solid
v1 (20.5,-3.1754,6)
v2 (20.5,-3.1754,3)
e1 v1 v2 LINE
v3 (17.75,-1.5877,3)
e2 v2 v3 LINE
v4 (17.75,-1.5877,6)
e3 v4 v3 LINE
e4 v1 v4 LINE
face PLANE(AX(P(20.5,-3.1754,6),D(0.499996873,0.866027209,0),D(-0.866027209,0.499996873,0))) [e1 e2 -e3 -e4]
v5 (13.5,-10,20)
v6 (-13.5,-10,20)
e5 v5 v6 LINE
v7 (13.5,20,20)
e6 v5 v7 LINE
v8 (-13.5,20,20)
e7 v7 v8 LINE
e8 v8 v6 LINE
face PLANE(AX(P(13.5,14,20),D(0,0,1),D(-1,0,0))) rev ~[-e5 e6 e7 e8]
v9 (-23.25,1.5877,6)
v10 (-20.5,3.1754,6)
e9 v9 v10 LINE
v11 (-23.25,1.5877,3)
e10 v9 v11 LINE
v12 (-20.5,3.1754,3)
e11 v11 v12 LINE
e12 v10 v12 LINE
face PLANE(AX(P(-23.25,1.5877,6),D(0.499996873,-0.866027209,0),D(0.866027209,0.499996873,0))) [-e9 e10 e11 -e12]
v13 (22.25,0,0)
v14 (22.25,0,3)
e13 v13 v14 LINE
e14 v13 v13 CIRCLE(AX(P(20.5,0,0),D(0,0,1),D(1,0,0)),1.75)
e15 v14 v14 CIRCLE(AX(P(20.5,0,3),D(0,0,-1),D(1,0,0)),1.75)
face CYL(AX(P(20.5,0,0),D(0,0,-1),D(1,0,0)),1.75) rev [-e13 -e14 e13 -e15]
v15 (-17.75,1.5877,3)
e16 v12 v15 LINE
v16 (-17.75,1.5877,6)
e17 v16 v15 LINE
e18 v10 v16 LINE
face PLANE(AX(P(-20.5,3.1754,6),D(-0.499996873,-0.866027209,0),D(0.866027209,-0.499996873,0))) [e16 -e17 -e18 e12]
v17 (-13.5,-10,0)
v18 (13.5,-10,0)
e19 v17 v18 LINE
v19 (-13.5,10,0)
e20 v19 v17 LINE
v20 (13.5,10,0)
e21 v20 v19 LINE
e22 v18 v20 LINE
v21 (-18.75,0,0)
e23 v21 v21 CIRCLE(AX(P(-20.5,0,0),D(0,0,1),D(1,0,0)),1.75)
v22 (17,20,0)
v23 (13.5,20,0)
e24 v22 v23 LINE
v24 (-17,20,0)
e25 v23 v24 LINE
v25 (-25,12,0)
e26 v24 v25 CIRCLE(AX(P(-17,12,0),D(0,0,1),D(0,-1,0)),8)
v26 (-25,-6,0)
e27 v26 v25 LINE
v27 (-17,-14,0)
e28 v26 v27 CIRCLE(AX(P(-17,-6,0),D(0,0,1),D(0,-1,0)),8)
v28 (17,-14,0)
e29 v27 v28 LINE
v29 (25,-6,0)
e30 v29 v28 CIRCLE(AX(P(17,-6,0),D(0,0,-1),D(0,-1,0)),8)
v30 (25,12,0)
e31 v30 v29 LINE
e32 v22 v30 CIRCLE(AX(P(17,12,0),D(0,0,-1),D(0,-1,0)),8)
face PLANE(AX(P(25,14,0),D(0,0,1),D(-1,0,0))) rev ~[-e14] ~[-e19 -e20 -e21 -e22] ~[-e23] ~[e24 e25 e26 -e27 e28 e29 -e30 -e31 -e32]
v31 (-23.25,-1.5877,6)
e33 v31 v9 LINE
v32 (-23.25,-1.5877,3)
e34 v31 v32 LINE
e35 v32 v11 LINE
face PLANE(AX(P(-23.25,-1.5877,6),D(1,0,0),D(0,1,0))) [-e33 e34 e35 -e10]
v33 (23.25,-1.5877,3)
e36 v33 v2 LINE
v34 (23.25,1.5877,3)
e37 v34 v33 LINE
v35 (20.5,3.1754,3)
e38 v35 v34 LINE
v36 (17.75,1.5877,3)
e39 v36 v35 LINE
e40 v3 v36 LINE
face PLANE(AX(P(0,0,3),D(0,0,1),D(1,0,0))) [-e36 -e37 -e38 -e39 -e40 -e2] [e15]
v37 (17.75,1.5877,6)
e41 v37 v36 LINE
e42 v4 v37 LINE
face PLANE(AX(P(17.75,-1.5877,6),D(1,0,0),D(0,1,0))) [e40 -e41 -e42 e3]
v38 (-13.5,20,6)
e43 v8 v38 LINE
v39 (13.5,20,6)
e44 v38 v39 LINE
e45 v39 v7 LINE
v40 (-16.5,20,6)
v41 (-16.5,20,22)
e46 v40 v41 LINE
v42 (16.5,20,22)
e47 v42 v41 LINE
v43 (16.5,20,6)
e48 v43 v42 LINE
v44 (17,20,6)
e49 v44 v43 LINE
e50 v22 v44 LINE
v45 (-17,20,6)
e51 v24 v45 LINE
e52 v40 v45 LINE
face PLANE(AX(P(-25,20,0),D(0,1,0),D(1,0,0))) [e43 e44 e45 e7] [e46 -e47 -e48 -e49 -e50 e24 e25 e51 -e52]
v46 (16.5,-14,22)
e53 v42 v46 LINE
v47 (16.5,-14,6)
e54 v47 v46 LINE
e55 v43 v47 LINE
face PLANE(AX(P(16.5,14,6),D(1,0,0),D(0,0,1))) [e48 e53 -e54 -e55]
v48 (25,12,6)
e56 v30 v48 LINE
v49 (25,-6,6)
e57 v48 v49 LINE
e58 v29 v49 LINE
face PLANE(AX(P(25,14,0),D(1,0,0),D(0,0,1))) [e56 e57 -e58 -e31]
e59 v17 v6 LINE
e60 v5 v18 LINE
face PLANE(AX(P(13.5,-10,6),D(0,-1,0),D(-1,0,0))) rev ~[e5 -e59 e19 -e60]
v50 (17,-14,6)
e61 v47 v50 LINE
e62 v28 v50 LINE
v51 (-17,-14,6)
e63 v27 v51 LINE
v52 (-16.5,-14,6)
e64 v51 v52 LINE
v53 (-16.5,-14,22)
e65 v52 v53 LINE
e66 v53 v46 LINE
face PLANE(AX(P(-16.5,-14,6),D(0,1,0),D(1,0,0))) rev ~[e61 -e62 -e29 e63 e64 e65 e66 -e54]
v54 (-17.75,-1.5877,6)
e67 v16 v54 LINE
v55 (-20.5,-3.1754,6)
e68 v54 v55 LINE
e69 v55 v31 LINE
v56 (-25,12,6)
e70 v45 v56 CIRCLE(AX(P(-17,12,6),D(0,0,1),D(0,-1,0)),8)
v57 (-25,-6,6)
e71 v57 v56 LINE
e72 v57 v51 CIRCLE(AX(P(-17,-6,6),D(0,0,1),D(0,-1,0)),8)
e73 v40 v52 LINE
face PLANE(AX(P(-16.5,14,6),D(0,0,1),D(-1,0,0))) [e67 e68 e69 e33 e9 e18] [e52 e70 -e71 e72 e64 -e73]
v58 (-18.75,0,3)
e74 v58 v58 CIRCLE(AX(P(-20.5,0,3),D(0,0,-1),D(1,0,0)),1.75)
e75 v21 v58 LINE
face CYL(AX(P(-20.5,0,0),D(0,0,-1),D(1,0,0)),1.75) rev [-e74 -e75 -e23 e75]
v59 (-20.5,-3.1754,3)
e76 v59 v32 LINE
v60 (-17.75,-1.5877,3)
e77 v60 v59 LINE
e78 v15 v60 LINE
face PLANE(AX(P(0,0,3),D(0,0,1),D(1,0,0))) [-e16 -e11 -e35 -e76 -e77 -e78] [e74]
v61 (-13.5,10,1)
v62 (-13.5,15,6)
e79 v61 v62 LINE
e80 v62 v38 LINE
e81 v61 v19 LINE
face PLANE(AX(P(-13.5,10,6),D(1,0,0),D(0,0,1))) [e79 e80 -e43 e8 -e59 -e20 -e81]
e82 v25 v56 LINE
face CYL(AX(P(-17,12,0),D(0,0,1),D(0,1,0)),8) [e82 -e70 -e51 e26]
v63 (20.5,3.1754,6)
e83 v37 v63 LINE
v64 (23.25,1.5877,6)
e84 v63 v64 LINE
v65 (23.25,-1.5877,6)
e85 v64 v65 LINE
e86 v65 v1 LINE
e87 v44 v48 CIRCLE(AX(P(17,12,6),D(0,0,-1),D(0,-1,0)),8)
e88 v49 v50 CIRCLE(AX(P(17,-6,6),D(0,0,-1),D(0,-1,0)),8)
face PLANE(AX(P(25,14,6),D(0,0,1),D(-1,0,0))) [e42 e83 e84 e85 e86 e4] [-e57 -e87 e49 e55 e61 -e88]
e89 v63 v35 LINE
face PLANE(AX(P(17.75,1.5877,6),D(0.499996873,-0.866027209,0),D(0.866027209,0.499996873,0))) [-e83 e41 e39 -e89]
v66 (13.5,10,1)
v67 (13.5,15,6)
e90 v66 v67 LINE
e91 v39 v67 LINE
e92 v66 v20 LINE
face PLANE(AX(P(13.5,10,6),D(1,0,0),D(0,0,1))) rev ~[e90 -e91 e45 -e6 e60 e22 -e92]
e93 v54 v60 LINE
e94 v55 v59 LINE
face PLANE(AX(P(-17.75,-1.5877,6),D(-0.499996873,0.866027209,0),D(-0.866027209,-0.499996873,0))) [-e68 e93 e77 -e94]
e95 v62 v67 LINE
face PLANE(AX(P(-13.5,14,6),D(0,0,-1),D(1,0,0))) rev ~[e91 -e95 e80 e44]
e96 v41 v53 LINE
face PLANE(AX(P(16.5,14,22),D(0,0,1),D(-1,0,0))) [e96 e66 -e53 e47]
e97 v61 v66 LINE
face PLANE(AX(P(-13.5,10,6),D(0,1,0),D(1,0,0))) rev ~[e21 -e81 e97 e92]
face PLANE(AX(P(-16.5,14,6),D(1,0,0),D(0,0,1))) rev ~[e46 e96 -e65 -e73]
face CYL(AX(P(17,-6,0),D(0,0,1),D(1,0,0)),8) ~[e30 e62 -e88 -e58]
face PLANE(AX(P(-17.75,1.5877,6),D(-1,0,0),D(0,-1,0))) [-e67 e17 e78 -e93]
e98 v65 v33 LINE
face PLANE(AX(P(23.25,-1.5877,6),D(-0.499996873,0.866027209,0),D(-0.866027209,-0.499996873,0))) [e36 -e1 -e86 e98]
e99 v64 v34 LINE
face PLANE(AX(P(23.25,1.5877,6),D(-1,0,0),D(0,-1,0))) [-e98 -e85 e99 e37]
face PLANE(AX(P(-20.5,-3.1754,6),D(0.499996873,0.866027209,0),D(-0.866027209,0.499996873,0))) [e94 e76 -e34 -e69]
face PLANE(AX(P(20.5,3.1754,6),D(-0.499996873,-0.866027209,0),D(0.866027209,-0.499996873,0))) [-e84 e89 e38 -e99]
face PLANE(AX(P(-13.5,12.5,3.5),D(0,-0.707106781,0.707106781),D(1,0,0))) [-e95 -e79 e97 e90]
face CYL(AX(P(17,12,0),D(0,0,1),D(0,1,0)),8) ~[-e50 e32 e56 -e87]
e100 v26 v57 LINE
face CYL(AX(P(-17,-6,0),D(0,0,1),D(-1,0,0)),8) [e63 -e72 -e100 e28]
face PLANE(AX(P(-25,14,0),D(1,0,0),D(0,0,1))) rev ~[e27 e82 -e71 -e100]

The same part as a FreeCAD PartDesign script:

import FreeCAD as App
import Part
import Sketcher
from FreeCAD import Vector
Q = App.Units.Quantity


def edges_at(feature, points):
    """Names of the edges that pass closest to the given points."""
    edges = feature.Shape.Edges
    near = lambda p: min(range(len(edges)), key=lambda i: edges[i].distToShape(Part.Vertex(*p))[0])
    return sorted({f"Edge{near(p) + 1}" for p in points})


def add_polygon(sketch, points):
    """Adds a closed chain of lines whose ends are joined by coincident constraints."""
    first, n = sketch.GeometryCount, len(points)
    for a, b in zip(points, points[1:] + points[:1]):
        sketch.addGeometry(Part.LineSegment(App.Vector(*a, 0), App.Vector(*b, 0)), False)
    for i in range(n):
        sketch.addConstraint(Sketcher.Constraint("Coincident", first + i, 2, first + (i + 1) % n, 1))

doc = App.newDocument("Part")
body = doc.addObject("PartDesign::Body", "Body")

# Sketch on XY plane
sketch1 = body.newObject("Sketcher::SketchObject", "Sketch")
sketch1.AttachmentSupport = (doc.getObject("XY_Plane"), [""])
sketch1.MapMode = "FlatFace"
add_polygon(sketch1, [(-25, 14), (-25, -14), (25, -14), (25, 14)])  # lines 0-3
sketch1.addGeometry(Part.Circle(Vector(-20.5, 0, 0), Vector(0, 0, 1), 1.75), False)  # 4
add_polygon(sketch1, [(13.5, -10), (-13.5, -10), (-13.5, 10), (13.5, 10)])  # lines 5-8
sketch1.addGeometry(Part.Circle(Vector(20.5, 0, 0), Vector(0, 0, 1), 1.75), False)  # 9
sketch1.addConstraint(Sketcher.Constraint("Vertical", 0))
sketch1.addConstraint(Sketcher.Constraint("Horizontal", 1))
sketch1.addConstraint(Sketcher.Constraint("Vertical", 2))
sketch1.addConstraint(Sketcher.Constraint("Horizontal", 3))
sketch1.addConstraint(Sketcher.Constraint("Horizontal", 5))
sketch1.addConstraint(Sketcher.Constraint("Vertical", 6))
sketch1.addConstraint(Sketcher.Constraint("Horizontal", 7))
sketch1.addConstraint(Sketcher.Constraint("Vertical", 8))
sketch1.addConstraint(Sketcher.Constraint("Equal", 4, 9))
sketch1.addConstraint(Sketcher.Constraint("Symmetric", 4, 3, 9, 3, -1, 1))
sketch1.addConstraint(Sketcher.Constraint("Symmetric", 0, 2, 2, 2, -1, 1))
sketch1.addConstraint(Sketcher.Constraint("Symmetric", 5, 2, 7, 2, -1, 1))
sketch1.addConstraint(Sketcher.Constraint("PointOnObject", 4, 3, -1))
sketch1.addConstraint(Sketcher.Constraint("Diameter", 4, Q("3.5 mm")))
sketch1.addConstraint(Sketcher.Constraint("DistanceX", 1, 1, 1, 2, Q("50 mm")))
sketch1.addConstraint(Sketcher.Constraint("DistanceX", 5, 2, 5, 1, Q("27 mm")))
sketch1.addConstraint(Sketcher.Constraint("DistanceY", 0, 2, 0, 1, Q("28 mm")))
sketch1.addConstraint(Sketcher.Constraint("DistanceY", 6, 1, 6, 2, Q("20 mm")))
sketch1.addConstraint(Sketcher.Constraint("DistanceX", 4, 3, 9, 3, Q("41 mm")))
pad1 = body.newObject("PartDesign::Pad", "Pad")
pad1.Profile = sketch1
pad1.Length = 6

# Sketch on XY plane
sketch2 = body.newObject("Sketcher::SketchObject", "Sketch001")
sketch2.AttachmentSupport = (doc.getObject("XY_Plane"), [""])
sketch2.MapMode = "FlatFace"
sketch2.AttachmentOffset = App.Placement(Vector(0, 0, 6), App.Rotation())
add_polygon(sketch2, [(23.25, 1.5877), (20.5, 3.1754), (17.75, 1.5877), (17.75, -1.5877), (20.5, -3.1754), (23.25, -1.5877)])  # lines 0-5
add_polygon(sketch2, [(-17.75, 1.5877), (-20.5, 3.1754), (-23.25, 1.5877), (-23.25, -1.5877), (-20.5, -3.1754), (-17.75, -1.5877)])  # lines 6-11
sketch2.addConstraint(Sketcher.Constraint("Vertical", 2))
sketch2.addConstraint(Sketcher.Constraint("Vertical", 5))
sketch2.addConstraint(Sketcher.Constraint("Vertical", 8))
sketch2.addConstraint(Sketcher.Constraint("Vertical", 11))
sketch2.addConstraint(Sketcher.Constraint("Symmetric", 3, 2, 6, 2, -1, 1))
sketch2.addConstraint(Sketcher.Constraint("Symmetric", 4, 2, 7, 2, -1, 1))
sketch2.addConstraint(Sketcher.Constraint("Symmetric", 0, 2, 9, 2, -1, 1))
sketch2.addConstraint(Sketcher.Constraint("Symmetric", 1, 2, 10, 2, -1, 1))
sketch2.addConstraint(Sketcher.Constraint("Symmetric", 0, 2, 6, 2, -2))
sketch2.addConstraint(Sketcher.Constraint("Parallel", 0, 3))
sketch2.addConstraint(Sketcher.Constraint("Parallel", 1, 4))
sketch2.addConstraint(Sketcher.Constraint("Parallel", 3, 6))
sketch2.addConstraint(Sketcher.Constraint("Parallel", 6, 9))
sketch2.addConstraint(Sketcher.Constraint("Horizontal", 2, 2, 4, 2))
sketch2.addConstraint(Sketcher.Constraint("Horizontal", 1, 2, 5, 2))
sketch2.addConstraint(Sketcher.Constraint("DistanceX", 2, 2, 4, 2, Q("5.5 mm")))
sketch2.addConstraint(Sketcher.Constraint("Angle", 0, Q("150.0002 deg")))
sketch2.addConstraint(Sketcher.Constraint("DistanceX", 6, 2, 0, 2, Q("41 mm")))
sketch2.addConstraint(Sketcher.Constraint("DistanceY", 2, 2, 2, 1, Q("3.1754 mm")))
pocket1 = body.newObject("PartDesign::Pocket", "Pocket")
pocket1.Profile = sketch2
pocket1.Length = 3

# Sketch on XY plane
sketch3 = body.newObject("Sketcher::SketchObject", "Sketch002")
sketch3.AttachmentSupport = (doc.getObject("XY_Plane"), [""])
sketch3.MapMode = "FlatFace"
sketch3.AttachmentOffset = App.Placement(Vector(0, 0, 6), App.Rotation())
add_polygon(sketch3, [(-16.5, 14), (-16.5, -14), (16.5, -14), (16.5, 14)])  # lines 0-3
add_polygon(sketch3, [(13.5, -10), (-13.5, -10), (-13.5, 10), (13.5, 10)])  # lines 4-7
sketch3.addConstraint(Sketcher.Constraint("Vertical", 0))
sketch3.addConstraint(Sketcher.Constraint("Horizontal", 1))
sketch3.addConstraint(Sketcher.Constraint("Vertical", 2))
sketch3.addConstraint(Sketcher.Constraint("Horizontal", 3))
sketch3.addConstraint(Sketcher.Constraint("Horizontal", 4))
sketch3.addConstraint(Sketcher.Constraint("Vertical", 5))
sketch3.addConstraint(Sketcher.Constraint("Horizontal", 6))
sketch3.addConstraint(Sketcher.Constraint("Vertical", 7))
sketch3.addConstraint(Sketcher.Constraint("Symmetric", 0, 2, 2, 2, -1, 1))
sketch3.addConstraint(Sketcher.Constraint("Symmetric", 4, 2, 6, 2, -1, 1))
sketch3.addConstraint(Sketcher.Constraint("DistanceX", 0, 2, 4, 2, Q("3 mm")))
sketch3.addConstraint(Sketcher.Constraint("DistanceX", 1, 1, 1, 2, Q("33 mm")))
sketch3.addConstraint(Sketcher.Constraint("DistanceY", 0, 2, 0, 1, Q("28 mm")))
sketch3.addConstraint(Sketcher.Constraint("DistanceY", 5, 1, 5, 2, Q("20 mm")))
pad2 = body.newObject("PartDesign::Pad", "Pad001")
pad2.Profile = sketch3
pad2.Length = 14

# Sketch on XY plane
sketch4 = body.newObject("Sketcher::SketchObject", "Sketch003")
sketch4.AttachmentSupport = (doc.getObject("XY_Plane"), [""])
sketch4.MapMode = "FlatFace"
sketch4.AttachmentOffset = App.Placement(Vector(0, 0, 20), App.Rotation())
add_polygon(sketch4, [(16.5, -14), (16.5, 14), (-16.5, 14), (-16.5, -14)])  # lines 0-3
sketch4.addConstraint(Sketcher.Constraint("Vertical", 0))
sketch4.addConstraint(Sketcher.Constraint("Horizontal", 1))
sketch4.addConstraint(Sketcher.Constraint("Vertical", 2))
sketch4.addConstraint(Sketcher.Constraint("Horizontal", 3))
sketch4.addConstraint(Sketcher.Constraint("Symmetric", 0, 2, 2, 2, -1, 1))
sketch4.addConstraint(Sketcher.Constraint("DistanceX", 1, 2, 1, 1, Q("33 mm")))
sketch4.addConstraint(Sketcher.Constraint("DistanceY", 0, 1, 0, 2, Q("28 mm")))
pad3 = body.newObject("PartDesign::Pad", "Pad002")
pad3.Profile = sketch4
pad3.Length = 2

# Sketch on XZ plane
sketch5 = body.newObject("Sketcher::SketchObject", "Sketch004")
sketch5.AttachmentSupport = (doc.getObject("XZ_Plane"), [""])
sketch5.MapMode = "FlatFace"
sketch5.AttachmentOffset = App.Placement(Vector(0, 0, -10), App.Rotation())
add_polygon(sketch5, [(-13.5, 6), (13.5, 6), (13.5, 20), (-13.5, 20)])  # lines 0-3
sketch5.addConstraint(Sketcher.Constraint("Horizontal", 0))
sketch5.addConstraint(Sketcher.Constraint("Vertical", 1))
sketch5.addConstraint(Sketcher.Constraint("Horizontal", 2))
sketch5.addConstraint(Sketcher.Constraint("Vertical", 3))
sketch5.addConstraint(Sketcher.Constraint("DistanceX", 0, 1, 0, 2, Q("27 mm")))
sketch5.addConstraint(Sketcher.Constraint("DistanceY", 1, 1, 1, 2, Q("14 mm")))
sketch5.addConstraint(Sketcher.Constraint("DistanceY", -1, 1, 0, 2, Q("6 mm")))
sketch5.addConstraint(Sketcher.Constraint("DistanceX", -1, 1, 0, 2, Q("13.5 mm")))
pocket2 = body.newObject("PartDesign::Pocket", "Pocket001")
pocket2.Profile = sketch5
pocket2.Type = "ThroughAll"

# Sketch on XZ plane
sketch6 = body.newObject("Sketcher::SketchObject", "Sketch005")
sketch6.AttachmentSupport = (doc.getObject("XZ_Plane"), [""])
sketch6.MapMode = "FlatFace"
sketch6.AttachmentOffset = App.Placement(Vector(0, 0, -14), App.Rotation())
add_polygon(sketch6, [(25, 0), (13.5, 0), (-25, 0), (-25, 6), (-16.5, 6), (-16.5, 22), (16.5, 22), (16.5, 6), (25, 6)])  # lines 0-8
add_polygon(sketch6, [(-13.5, 6), (13.5, 6), (13.5, 20), (-13.5, 20)])  # lines 9-12
sketch6.addConstraint(Sketcher.Constraint("Horizontal", 0))
sketch6.addConstraint(Sketcher.Constraint("Horizontal", 1))
sketch6.addConstraint(Sketcher.Constraint("Vertical", 2))
sketch6.addConstraint(Sketcher.Constraint("Horizontal", 3))
sketch6.addConstraint(Sketcher.Constraint("Vertical", 4))
sketch6.addConstraint(Sketcher.Constraint("Horizontal", 5))
sketch6.addConstraint(Sketcher.Constraint("Vertical", 6))
sketch6.addConstraint(Sketcher.Constraint("Horizontal", 7))
sketch6.addConstraint(Sketcher.Constraint("Vertical", 8))
sketch6.addConstraint(Sketcher.Constraint("Horizontal", 9))
sketch6.addConstraint(Sketcher.Constraint("Vertical", 10))
sketch6.addConstraint(Sketcher.Constraint("Horizontal", 11))
sketch6.addConstraint(Sketcher.Constraint("Vertical", 12))
sketch6.addConstraint(Sketcher.Constraint("Symmetric", 1, 2, 8, 2, -1, 1))
sketch6.addConstraint(Sketcher.Constraint("Symmetric", 3, 2, 6, 2, -2))
sketch6.addConstraint(Sketcher.Constraint("Horizontal", 7, 2, 9, 2))
sketch6.addConstraint(Sketcher.Constraint("Vertical", 0, 2, 9, 2))
sketch6.addConstraint(Sketcher.Constraint("DistanceX", 5, 1, 5, 2, Q("33 mm")))
sketch6.addConstraint(Sketcher.Constraint("DistanceX", 9, 1, 9, 2, Q("27 mm")))
sketch6.addConstraint(Sketcher.Constraint("DistanceY", 2, 1, 2, 2, Q("6 mm")))
sketch6.addConstraint(Sketcher.Constraint("DistanceY", 4, 1, 4, 2, Q("16 mm")))
sketch6.addConstraint(Sketcher.Constraint("DistanceY", 10, 1, 10, 2, Q("14 mm")))
sketch6.addConstraint(Sketcher.Constraint("DistanceX", 0, 2, 0, 1, Q("11.5 mm")))
sketch6.addConstraint(Sketcher.Constraint("DistanceX", 1, 2, 1, 1, Q("38.5 mm")))
pad4 = body.newObject("PartDesign::Pad", "Pad003")
pad4.Profile = sketch6
pad4.Length = 6
pad4.Reversed = True
doc.recompute()

chamfer = body.newObject("PartDesign::Chamfer", "Chamfer")
chamfer.Base = (pad4, edges_at(pad4, [(0, 10, 6)]))
chamfer.Size = 5
doc.recompute()

fillet = body.newObject("PartDesign::Fillet", "Fillet")
fillet.Base = (chamfer, edges_at(chamfer, [
    (25, -14, 3),
    (25, 20, 3),
    (-25, -14, 3),
    (-25, 20, 3),
]))
fillet.Radius = 8

doc.recompute()
